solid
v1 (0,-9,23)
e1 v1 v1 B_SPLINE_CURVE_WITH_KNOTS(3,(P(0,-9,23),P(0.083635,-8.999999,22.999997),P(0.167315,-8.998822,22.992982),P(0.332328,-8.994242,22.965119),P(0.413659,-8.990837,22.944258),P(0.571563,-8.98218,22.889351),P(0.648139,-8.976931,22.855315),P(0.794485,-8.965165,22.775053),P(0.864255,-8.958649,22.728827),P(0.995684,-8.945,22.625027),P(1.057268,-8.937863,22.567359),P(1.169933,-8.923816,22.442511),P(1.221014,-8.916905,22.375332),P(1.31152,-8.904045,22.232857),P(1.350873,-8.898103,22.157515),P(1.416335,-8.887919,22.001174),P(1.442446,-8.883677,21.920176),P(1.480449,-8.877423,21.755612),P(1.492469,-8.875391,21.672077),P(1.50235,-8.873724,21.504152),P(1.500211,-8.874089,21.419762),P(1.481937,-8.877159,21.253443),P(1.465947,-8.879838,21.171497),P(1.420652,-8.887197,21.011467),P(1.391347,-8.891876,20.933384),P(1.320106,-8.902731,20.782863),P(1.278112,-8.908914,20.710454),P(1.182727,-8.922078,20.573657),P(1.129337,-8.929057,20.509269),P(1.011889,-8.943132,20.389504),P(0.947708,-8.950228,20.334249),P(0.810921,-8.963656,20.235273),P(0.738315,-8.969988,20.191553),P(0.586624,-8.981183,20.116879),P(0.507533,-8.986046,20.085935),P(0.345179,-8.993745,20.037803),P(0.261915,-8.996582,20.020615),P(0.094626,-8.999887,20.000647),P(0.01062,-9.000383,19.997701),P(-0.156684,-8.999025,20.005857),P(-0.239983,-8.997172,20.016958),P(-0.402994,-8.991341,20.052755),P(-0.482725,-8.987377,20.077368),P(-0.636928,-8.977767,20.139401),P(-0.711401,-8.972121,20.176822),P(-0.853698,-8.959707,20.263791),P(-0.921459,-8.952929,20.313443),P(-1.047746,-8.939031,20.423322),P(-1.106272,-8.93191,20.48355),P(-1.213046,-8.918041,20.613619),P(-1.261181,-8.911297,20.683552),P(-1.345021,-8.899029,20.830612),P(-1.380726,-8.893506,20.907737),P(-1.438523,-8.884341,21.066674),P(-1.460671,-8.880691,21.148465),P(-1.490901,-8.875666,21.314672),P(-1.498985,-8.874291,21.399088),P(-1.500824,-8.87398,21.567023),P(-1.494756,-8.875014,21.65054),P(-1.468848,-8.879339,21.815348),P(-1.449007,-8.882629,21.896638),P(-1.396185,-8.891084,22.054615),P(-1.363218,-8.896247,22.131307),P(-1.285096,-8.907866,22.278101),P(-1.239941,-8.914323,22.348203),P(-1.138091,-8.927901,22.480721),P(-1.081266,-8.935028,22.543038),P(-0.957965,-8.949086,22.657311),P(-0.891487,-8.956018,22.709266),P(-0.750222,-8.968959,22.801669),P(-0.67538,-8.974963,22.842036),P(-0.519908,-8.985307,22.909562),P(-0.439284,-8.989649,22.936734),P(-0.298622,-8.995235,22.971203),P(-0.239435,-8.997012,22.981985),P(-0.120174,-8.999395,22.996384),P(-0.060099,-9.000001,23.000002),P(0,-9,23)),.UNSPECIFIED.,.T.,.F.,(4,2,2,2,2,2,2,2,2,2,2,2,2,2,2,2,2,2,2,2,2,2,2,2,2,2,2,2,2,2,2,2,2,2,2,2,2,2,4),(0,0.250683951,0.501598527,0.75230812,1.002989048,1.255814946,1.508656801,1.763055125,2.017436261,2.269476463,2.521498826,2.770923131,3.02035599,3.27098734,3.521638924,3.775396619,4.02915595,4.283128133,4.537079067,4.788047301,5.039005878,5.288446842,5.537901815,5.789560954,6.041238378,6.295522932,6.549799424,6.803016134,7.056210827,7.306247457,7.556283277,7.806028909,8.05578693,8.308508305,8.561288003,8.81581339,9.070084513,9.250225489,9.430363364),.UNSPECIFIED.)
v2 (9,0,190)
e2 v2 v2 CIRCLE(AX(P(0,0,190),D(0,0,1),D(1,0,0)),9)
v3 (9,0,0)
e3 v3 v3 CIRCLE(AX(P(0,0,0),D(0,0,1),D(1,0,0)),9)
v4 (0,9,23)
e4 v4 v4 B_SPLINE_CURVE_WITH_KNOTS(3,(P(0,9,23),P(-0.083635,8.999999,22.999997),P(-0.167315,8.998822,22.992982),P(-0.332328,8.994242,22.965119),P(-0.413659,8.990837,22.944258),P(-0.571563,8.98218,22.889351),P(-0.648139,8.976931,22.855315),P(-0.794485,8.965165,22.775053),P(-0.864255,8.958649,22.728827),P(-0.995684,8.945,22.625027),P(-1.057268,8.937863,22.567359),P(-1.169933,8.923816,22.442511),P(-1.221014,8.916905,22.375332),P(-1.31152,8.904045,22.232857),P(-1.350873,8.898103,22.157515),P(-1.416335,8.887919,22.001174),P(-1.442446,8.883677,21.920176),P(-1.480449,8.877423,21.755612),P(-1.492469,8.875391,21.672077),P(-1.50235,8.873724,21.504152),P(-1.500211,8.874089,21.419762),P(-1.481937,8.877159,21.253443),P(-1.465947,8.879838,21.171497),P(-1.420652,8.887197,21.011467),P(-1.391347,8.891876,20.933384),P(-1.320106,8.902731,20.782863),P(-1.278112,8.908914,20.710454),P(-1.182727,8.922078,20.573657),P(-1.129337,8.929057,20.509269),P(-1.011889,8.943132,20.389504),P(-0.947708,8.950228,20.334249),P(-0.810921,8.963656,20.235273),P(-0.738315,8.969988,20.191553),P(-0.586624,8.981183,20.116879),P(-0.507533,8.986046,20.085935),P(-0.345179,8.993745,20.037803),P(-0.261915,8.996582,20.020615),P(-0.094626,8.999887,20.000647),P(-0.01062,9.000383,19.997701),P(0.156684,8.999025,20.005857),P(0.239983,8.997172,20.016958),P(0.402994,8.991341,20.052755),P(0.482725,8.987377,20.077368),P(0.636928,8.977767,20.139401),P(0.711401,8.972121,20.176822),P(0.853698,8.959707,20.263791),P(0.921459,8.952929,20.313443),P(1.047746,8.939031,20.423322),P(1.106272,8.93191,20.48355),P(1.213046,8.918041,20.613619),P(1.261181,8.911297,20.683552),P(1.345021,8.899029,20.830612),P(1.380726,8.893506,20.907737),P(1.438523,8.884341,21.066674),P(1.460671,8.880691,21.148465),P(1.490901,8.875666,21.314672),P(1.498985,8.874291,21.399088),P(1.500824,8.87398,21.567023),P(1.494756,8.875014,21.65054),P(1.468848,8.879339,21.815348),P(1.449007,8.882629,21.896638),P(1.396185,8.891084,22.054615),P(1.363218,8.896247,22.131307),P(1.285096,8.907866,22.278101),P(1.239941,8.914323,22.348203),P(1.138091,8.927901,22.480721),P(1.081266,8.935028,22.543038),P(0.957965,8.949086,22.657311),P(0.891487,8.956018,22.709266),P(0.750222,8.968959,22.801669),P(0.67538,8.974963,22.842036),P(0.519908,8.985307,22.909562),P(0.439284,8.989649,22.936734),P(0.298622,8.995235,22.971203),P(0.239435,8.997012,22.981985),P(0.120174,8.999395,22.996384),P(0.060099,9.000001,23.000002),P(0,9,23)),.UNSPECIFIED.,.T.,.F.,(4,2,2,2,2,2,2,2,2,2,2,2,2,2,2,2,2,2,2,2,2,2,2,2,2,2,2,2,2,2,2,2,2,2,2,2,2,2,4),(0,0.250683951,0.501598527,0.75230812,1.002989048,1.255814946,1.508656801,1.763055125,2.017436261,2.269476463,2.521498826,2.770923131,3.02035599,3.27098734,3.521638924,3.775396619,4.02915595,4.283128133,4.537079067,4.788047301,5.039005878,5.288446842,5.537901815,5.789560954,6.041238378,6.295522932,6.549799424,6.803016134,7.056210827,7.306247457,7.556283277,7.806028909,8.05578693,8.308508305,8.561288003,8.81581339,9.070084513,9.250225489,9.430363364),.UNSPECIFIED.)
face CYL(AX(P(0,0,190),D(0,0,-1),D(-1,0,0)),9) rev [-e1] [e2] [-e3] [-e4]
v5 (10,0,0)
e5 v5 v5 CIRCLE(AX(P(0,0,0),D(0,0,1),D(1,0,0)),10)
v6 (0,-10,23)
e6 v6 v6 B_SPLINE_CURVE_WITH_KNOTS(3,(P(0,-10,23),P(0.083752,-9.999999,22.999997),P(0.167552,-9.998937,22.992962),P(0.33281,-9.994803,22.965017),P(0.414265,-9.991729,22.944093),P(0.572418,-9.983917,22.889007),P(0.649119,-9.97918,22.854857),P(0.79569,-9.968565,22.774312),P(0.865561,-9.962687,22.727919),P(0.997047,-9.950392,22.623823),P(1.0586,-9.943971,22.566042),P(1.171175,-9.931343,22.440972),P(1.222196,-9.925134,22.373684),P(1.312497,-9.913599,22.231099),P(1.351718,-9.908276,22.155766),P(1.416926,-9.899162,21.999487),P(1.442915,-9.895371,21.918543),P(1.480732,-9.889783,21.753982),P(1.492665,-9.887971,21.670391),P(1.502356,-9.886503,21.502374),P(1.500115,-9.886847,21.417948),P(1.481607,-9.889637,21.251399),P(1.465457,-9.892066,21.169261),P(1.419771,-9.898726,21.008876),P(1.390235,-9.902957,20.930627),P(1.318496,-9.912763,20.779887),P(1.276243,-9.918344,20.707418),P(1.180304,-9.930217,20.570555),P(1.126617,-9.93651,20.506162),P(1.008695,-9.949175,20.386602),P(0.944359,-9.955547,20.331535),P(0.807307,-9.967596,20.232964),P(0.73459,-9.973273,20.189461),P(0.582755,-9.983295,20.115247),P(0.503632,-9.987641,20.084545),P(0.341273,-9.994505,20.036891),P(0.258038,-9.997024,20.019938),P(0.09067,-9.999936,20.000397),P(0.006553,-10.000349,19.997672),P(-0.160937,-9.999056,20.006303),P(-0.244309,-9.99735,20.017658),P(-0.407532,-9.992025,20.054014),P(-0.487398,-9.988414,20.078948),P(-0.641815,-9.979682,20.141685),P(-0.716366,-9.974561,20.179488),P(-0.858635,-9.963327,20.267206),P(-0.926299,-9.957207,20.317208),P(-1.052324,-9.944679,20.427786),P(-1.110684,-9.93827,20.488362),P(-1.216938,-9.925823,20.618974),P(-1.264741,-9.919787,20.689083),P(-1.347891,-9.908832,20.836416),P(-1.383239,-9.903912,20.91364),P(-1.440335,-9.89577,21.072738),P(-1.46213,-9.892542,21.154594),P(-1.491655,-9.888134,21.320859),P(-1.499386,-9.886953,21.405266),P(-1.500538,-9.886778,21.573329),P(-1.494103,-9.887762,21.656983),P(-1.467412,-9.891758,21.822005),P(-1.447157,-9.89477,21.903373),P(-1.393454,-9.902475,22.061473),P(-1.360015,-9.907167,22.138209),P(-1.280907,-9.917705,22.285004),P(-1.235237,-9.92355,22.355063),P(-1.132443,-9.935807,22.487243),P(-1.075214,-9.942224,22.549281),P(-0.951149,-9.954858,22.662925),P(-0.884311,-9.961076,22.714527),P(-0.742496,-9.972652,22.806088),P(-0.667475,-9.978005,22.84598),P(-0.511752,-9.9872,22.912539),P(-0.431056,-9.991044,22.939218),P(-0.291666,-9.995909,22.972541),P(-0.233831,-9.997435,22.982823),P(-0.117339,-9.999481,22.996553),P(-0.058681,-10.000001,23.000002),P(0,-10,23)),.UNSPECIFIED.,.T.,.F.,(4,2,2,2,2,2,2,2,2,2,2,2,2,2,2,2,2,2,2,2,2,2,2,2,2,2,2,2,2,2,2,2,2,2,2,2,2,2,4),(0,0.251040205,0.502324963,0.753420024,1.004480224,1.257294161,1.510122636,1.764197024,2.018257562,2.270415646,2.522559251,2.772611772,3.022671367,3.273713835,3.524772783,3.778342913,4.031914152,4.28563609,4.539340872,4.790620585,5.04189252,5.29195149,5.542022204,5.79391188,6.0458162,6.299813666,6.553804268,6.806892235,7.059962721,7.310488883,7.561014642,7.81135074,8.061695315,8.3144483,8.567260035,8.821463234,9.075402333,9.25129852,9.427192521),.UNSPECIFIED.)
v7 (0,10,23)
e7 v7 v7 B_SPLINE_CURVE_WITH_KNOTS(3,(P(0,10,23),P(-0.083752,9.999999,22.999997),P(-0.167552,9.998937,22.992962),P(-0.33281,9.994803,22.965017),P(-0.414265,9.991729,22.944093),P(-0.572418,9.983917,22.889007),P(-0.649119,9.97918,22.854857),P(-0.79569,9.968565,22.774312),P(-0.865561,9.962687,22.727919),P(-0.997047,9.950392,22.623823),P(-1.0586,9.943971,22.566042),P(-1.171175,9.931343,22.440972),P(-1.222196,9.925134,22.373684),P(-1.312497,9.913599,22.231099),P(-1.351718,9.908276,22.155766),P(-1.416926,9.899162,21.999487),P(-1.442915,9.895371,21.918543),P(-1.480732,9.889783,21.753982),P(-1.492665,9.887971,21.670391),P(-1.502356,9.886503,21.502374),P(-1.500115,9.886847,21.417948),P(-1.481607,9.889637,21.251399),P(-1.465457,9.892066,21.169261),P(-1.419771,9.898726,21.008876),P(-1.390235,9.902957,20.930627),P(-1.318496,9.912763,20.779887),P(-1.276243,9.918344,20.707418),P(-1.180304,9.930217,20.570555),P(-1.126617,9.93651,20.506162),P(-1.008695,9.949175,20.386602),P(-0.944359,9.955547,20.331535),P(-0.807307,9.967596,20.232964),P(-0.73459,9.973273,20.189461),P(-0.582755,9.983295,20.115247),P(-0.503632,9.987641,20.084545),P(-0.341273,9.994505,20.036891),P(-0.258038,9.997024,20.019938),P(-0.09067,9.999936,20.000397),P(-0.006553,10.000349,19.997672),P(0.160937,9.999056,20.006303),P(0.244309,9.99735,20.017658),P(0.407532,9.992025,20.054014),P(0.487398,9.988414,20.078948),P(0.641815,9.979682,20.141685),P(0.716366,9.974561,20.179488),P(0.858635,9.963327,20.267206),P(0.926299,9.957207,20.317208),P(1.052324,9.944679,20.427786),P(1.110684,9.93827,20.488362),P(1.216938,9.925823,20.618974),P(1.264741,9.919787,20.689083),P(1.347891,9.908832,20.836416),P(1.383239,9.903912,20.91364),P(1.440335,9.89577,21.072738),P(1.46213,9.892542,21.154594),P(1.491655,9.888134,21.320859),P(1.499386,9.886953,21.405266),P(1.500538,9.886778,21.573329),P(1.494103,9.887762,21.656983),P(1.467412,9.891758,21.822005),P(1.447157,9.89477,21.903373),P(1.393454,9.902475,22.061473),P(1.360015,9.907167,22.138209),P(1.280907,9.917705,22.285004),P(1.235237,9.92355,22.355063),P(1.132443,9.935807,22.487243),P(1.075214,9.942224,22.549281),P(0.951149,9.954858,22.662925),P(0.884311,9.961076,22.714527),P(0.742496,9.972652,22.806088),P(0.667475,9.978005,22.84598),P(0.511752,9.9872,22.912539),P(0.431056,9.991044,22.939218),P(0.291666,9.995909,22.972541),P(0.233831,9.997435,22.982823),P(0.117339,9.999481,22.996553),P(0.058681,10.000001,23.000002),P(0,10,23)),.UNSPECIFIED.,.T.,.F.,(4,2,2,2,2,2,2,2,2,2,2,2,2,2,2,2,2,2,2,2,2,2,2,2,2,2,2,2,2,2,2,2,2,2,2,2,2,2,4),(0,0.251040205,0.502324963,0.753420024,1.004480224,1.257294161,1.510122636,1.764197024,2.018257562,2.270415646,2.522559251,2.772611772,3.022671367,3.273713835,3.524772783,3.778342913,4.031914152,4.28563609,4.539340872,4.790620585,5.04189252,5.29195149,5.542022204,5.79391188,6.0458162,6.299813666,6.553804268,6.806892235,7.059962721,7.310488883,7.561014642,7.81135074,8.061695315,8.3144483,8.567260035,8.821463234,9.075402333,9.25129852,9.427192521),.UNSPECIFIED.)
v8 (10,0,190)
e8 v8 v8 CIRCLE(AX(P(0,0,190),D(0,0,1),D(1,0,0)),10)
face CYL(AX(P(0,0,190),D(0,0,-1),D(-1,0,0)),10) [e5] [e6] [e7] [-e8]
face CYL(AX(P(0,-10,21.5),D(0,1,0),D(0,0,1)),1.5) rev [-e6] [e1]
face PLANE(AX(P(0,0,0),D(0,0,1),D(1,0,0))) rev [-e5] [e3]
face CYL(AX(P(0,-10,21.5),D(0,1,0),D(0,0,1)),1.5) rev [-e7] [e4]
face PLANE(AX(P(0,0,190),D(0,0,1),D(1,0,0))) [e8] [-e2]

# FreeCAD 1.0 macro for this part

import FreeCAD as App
import Part
import Sketcher

doc = App.newDocument("Part")
body = doc.addObject("PartDesign::Body", "Body")

# Sketch on XY plane
sketch1 = body.newObject("Sketcher::SketchObject", "Sketch")
sketch1.AttachmentSupport = (doc.getObject("XY_Plane"), [""])
sketch1.MapMode = "FlatFace"
sketch1.addGeometry(Part.Circle(App.Vector(0, 0, 0), App.Vector(0, 0, 1), 10), False)
sketch1.addGeometry(Part.Circle(App.Vector(0, 0, 0), App.Vector(0, 0, 1), 9), False)
sketch1.addConstraint(Sketcher.Constraint("Coincident", 0, 3, -1, 1))
sketch1.addConstraint(Sketcher.Constraint("Coincident", 1, 3, -1, 1))
sketch1.addConstraint(Sketcher.Constraint("Diameter", 0, 20.0))
sketch1.addConstraint(Sketcher.Constraint("Diameter", 1, 18.0))
pad1 = body.newObject("PartDesign::Pad", "Pad")
pad1.Profile = sketch1
pad1.Length = 190

# Sketch on XZ plane
sketch2 = body.newObject("Sketcher::SketchObject", "Sketch001")
sketch2.AttachmentSupport = (doc.getObject("XZ_Plane"), [""])
sketch2.MapMode = "FlatFace"
sketch2.addGeometry(Part.Circle(App.Vector(0, 21.5, 0), App.Vector(0, 0, 1), 1.5), False)
sketch2.addConstraint(Sketcher.Constraint("PointOnObject", 0, 3, -2))
sketch2.addConstraint(Sketcher.Constraint("Diameter", 0, 3.0))
sketch2.addConstraint(Sketcher.Constraint("DistanceY", -1, 1, 0, 3, 21.5))
pocket1 = body.newObject("PartDesign::Pocket", "Pocket")
pocket1.Profile = sketch2
pocket1.Type = "ThroughAll"
pocket1.Midplane = True

doc.recompute()
